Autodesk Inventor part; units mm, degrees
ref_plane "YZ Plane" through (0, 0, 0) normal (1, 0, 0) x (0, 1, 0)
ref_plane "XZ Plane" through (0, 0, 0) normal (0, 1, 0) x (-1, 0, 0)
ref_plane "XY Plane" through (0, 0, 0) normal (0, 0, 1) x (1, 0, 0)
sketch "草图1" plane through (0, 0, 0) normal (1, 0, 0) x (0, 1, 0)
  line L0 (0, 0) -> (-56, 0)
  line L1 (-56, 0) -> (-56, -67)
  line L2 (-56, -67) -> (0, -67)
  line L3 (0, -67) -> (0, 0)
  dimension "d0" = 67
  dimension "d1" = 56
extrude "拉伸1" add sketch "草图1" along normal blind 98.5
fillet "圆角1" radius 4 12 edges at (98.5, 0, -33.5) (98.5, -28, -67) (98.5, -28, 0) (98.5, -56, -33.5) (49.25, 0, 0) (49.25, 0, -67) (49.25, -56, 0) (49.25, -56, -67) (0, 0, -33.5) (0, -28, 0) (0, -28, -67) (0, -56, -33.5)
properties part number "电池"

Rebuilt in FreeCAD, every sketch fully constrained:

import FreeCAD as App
import Part
import Sketcher
Q = App.Units.Quantity

doc = App.newDocument("Part")
body = doc.addObject("PartDesign::Body", "Body")

# Sketch on YZ plane
sketch1 = doc.addObject("Sketcher::SketchObject", "Sketch")
body.addObject(sketch1)
sketch1.AttachmentSupport = (doc.YZ_Plane, [""])
sketch1.MapMode = "FlatFace"
sketch1.addGeometry([
    Part.LineSegment(App.Vector(0, -67, 0), App.Vector(0, 0, 0)),
    Part.LineSegment(App.Vector(0, 0, 0), App.Vector(-56, 0, 0)),
    Part.LineSegment(App.Vector(-56, 0, 0), App.Vector(-56, -67, 0)),
    Part.LineSegment(App.Vector(-56, -67, 0), App.Vector(0, -67, 0)),
], False)
sketch1.addConstraint([
    Sketcher.Constraint("Coincident", 0, 2, 1, 1),
    Sketcher.Constraint("Coincident", 1, 2, 2, 1),
    Sketcher.Constraint("Coincident", 2, 2, 3, 1),
    Sketcher.Constraint("Coincident", 3, 2, 0, 1),
    Sketcher.Constraint("Vertical", 0),
    Sketcher.Constraint("Horizontal", 1),
    Sketcher.Constraint("Vertical", 2),
    Sketcher.Constraint("Horizontal", 3),
    Sketcher.Constraint("Coincident", 0, 2, -1, 1),
    Sketcher.Constraint("DistanceX", 1, 2, 1, 1, Q("56 mm")),
    Sketcher.Constraint("DistanceY", 0, 1, 0, 2, Q("67 mm")),
])
pad1 = doc.addObject("PartDesign::Pad", "Pad")
body.addObject(pad1)
pad1.Profile = sketch1
pad1.Length = 98.5
doc.recompute()

fillet = doc.addObject("PartDesign::Fillet", "Fillet")
body.addObject(fillet)
fillet.Base = (pad1, ["Edge1"])
fillet.UseAllEdges = True
fillet.Radius = 4

doc.recompute()
